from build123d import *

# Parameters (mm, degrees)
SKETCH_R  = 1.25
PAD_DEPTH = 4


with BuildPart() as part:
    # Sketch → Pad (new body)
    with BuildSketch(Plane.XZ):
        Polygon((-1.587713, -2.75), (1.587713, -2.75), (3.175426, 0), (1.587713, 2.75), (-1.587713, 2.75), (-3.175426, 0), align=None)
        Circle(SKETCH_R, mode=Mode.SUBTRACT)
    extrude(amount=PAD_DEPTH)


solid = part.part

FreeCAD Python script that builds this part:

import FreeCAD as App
import Part
import Sketcher

V = App.Vector
Q = App.Units.Quantity

doc = App.newDocument("Part")
params = doc.addObject("Spreadsheet::Sheet", "Params")
for row, (alias, value) in enumerate([
    ("sketch1_diameter", "2.5 mm"),
    ("pad1_length", "4 mm"),
], start=1):
    params.set(f"A{row}", alias)
    params.set(f"B{row}", "=" + value)
    params.setAlias(f"B{row}", alias)

body = doc.addObject("PartDesign::Body", "Body")

# Sketch on XZ plane
sketch1 = body.newObject("Sketcher::SketchObject", "Sketch")
sketch1.AttachmentSupport = (doc.getObject("XZ_Plane"), [""])
sketch1.MapMode = "FlatFace"
sketch1.addGeometry([
    Part.LineSegment(V(-1.6, -2.8, 0), V(1.6, -2.8, 0)),  # 0
    Part.LineSegment(V(1.6, -2.8, 0), V(3.2, 0, 0)),  # 1
    Part.LineSegment(V(3.2, 0, 0), V(1.6, 2.8, 0)),  # 2
    Part.LineSegment(V(1.6, 2.8, 0), V(-1.6, 2.8, 0)),  # 3
    Part.LineSegment(V(-1.6, 2.8, 0), V(-3.2, 0, 0)),  # 4
    Part.LineSegment(V(-3.2, 0, 0), V(-1.6, -2.8, 0)),  # 5
    Part.Circle(V(0, 0, 0), V(0, 0, 1), 1.2),  # 6
], False)
sketch1.addConstraint([
    Sketcher.Constraint("Coincident", 0, 2, 1, 1),
    Sketcher.Constraint("Coincident", 1, 2, 2, 1),
    Sketcher.Constraint("Coincident", 2, 2, 3, 1),
    Sketcher.Constraint("Coincident", 3, 2, 4, 1),
    Sketcher.Constraint("Coincident", 4, 2, 5, 1),
    Sketcher.Constraint("Coincident", 5, 2, 0, 1),
    Sketcher.Constraint("Horizontal", 0),
    Sketcher.Constraint("Horizontal", 3),
    Sketcher.Constraint("Coincident", 6, 3, -1, 1),
    Sketcher.Constraint("Symmetric", 0, 2, 3, 2, -1, 1),
    Sketcher.Constraint("Symmetric", 1, 2, 4, 2, -1, 1),
    Sketcher.Constraint("PointOnObject", 1, 2, -1),
    Sketcher.Constraint("Parallel", 2, 5),
    Sketcher.Constraint("Vertical", 0, 2, 2, 2),
    Sketcher.Constraint("Diameter", 6, 2.5),
    Sketcher.Constraint("Angle", 1, Q("60.000004 deg")),
    Sketcher.Constraint("DistanceY", 0, 2, 2, 2, 5.5),
    Sketcher.Constraint("DistanceX", 0, 1, 0, 2, 3.175426),
])
sketch1.setExpression("Constraints[14]", "Params.sketch1_diameter")
pad1 = body.newObject("PartDesign::Pad", "Pad")
pad1.Profile = sketch1
pad1.setExpression("Length", "Params.pad1_length")

doc.recompute()
